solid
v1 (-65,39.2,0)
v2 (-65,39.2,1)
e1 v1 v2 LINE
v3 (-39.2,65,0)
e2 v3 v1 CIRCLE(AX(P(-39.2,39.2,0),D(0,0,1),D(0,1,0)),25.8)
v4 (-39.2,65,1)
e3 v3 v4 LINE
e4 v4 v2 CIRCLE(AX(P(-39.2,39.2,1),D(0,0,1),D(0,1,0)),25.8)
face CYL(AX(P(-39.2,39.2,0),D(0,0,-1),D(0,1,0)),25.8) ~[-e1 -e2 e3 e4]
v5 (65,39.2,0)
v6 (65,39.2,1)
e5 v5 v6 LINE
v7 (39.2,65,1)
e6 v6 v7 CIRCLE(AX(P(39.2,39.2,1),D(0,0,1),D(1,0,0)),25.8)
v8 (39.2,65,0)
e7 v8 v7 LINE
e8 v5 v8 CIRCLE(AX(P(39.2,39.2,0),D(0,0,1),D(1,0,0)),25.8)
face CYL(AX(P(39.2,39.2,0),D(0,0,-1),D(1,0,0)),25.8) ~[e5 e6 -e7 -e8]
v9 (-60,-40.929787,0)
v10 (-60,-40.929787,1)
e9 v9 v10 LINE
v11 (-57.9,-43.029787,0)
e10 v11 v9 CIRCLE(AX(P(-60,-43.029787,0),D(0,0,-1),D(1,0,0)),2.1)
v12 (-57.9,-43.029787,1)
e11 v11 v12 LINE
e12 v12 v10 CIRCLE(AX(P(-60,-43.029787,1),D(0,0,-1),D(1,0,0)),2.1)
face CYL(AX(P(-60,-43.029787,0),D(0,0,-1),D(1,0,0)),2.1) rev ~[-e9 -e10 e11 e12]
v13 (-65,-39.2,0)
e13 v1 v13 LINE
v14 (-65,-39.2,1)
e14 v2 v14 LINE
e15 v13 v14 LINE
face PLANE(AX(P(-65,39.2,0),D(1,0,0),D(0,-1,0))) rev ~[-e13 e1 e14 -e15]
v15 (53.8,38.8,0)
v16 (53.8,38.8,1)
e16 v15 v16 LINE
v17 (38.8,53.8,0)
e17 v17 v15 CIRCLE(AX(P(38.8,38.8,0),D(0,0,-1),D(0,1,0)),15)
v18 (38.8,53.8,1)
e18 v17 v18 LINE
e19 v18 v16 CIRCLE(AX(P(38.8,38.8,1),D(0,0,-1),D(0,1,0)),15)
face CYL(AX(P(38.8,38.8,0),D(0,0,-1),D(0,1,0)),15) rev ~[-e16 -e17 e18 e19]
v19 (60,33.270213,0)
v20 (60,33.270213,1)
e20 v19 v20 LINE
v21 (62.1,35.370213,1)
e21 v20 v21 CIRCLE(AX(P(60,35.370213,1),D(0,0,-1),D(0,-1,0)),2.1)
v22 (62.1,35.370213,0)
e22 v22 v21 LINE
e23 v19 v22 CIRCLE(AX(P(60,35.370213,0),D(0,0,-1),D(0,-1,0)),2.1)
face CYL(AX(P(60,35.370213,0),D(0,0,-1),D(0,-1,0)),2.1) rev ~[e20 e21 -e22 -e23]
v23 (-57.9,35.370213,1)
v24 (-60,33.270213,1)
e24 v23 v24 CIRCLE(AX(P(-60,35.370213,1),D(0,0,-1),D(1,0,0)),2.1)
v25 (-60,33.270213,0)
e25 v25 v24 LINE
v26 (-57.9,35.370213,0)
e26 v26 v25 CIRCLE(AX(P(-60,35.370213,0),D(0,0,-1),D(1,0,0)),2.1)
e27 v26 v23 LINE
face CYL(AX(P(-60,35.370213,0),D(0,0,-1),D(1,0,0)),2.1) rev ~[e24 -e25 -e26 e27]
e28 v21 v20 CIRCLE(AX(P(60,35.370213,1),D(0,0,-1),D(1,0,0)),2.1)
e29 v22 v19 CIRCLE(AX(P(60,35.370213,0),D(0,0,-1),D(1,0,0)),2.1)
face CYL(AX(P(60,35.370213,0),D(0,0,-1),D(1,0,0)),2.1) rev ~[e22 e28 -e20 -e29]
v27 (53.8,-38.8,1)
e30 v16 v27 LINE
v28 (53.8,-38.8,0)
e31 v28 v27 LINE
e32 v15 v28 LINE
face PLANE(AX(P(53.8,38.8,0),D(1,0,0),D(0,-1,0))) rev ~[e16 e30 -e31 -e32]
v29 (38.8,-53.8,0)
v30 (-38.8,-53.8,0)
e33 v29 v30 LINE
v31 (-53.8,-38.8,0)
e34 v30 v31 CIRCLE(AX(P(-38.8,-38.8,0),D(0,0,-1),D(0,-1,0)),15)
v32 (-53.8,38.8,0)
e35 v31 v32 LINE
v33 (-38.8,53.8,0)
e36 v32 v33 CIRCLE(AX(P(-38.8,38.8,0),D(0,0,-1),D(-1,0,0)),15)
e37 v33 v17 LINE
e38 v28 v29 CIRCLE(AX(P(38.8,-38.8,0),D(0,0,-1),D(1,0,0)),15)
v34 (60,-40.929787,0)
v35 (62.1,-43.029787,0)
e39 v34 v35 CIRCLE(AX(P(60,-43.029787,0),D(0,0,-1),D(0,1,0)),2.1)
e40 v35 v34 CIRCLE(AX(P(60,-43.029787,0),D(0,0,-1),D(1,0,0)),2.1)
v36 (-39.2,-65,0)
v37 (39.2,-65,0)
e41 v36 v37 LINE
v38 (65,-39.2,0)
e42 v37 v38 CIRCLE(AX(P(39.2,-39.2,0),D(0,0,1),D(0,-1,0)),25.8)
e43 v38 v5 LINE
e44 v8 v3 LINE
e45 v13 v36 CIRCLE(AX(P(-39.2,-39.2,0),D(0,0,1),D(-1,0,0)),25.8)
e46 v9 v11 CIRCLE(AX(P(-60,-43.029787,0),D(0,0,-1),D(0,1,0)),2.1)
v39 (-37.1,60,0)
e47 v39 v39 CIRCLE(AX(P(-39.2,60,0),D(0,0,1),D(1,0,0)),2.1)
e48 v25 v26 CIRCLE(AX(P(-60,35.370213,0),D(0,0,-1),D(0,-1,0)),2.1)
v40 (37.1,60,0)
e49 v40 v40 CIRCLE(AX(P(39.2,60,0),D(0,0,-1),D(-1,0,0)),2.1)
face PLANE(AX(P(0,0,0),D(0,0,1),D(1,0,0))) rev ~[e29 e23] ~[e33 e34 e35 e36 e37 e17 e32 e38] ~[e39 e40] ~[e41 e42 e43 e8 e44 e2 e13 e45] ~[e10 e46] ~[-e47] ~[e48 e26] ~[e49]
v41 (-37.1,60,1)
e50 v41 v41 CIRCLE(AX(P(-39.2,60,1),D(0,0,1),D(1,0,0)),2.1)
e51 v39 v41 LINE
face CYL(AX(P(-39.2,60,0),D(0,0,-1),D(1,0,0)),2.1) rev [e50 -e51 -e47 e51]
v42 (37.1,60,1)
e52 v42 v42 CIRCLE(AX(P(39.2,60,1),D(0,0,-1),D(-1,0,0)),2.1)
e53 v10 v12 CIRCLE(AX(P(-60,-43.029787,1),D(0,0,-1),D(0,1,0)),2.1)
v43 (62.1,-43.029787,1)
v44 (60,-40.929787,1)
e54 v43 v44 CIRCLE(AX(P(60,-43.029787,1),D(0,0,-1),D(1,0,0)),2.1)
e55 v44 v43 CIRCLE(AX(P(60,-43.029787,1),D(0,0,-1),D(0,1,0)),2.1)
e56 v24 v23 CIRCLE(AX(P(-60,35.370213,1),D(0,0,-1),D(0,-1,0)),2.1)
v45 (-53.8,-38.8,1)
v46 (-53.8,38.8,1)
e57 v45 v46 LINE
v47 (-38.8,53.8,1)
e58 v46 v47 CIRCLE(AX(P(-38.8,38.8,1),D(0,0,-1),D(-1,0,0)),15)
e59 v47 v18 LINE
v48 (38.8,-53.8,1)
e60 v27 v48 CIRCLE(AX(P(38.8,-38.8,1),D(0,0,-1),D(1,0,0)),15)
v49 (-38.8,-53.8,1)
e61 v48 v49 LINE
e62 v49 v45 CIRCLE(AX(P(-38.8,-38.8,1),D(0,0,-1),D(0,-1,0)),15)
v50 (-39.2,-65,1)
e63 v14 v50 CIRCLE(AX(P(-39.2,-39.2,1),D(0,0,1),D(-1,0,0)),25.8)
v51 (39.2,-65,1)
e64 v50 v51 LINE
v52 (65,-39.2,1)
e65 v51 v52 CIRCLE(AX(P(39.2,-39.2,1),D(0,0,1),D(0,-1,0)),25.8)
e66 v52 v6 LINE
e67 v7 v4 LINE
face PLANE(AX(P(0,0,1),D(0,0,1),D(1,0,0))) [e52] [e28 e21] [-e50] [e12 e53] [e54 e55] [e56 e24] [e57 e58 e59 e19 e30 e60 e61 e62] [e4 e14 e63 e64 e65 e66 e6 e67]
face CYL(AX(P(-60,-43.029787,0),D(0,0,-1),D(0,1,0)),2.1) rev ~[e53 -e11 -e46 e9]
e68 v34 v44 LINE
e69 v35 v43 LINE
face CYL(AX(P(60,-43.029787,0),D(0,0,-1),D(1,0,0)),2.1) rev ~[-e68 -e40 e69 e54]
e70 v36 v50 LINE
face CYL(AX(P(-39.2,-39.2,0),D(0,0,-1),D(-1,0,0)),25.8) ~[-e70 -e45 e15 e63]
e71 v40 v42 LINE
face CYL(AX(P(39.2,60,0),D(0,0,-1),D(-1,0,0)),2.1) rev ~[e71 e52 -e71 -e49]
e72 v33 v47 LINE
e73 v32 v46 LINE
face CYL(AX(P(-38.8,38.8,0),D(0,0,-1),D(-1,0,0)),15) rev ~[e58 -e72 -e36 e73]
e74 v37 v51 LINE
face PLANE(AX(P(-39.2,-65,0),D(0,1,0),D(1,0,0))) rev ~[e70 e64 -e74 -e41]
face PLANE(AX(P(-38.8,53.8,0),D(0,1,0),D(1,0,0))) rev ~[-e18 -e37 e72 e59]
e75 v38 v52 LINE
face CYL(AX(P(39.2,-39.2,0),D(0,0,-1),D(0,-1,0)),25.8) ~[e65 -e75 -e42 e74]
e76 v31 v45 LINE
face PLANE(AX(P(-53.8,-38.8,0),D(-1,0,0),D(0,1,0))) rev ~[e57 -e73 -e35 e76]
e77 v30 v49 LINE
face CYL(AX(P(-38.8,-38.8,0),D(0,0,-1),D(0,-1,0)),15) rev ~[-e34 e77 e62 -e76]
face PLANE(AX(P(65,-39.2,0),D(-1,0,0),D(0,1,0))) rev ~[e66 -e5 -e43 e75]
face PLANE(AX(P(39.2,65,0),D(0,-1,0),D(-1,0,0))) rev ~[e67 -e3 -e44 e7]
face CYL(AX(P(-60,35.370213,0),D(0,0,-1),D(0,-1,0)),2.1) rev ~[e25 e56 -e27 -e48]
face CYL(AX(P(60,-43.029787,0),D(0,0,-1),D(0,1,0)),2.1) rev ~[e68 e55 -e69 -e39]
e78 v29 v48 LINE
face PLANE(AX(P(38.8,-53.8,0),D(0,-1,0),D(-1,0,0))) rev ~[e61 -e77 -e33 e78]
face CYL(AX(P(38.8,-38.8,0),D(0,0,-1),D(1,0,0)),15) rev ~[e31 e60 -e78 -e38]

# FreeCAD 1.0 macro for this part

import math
import FreeCAD as App
import Part
import Sketcher
Q = App.Units.Quantity

doc = App.newDocument("Part")
body = doc.addObject("PartDesign::Body", "Body")

# Sketch on XY plane
sketch1 = body.newObject("Sketcher::SketchObject", "Sketch")
sketch1.AttachmentSupport = (doc.getObject("XY_Plane"), [""])
sketch1.MapMode = "FlatFace"
sketch1.addGeometry([
    Part.ArcOfCircle(Part.Circle(App.Vector(39.2, 39.2, 0), App.Vector(0, 0, 1), 25.8), math.radians(0), math.radians(90)),  # 0
    Part.LineSegment(App.Vector(39.2, 65, 0), App.Vector(-39.2, 65, 0)),  # 1
    Part.ArcOfCircle(Part.Circle(App.Vector(-39.2, 39.2, 0), App.Vector(0, 0, 1), 25.8), math.radians(90), math.radians(180)),  # 2
    Part.LineSegment(App.Vector(-65, 39.2, 0), App.Vector(-65, -39.2, 0)),  # 3
    Part.ArcOfCircle(Part.Circle(App.Vector(-39.2, -39.2, 0), App.Vector(0, 0, 1), 25.8), math.radians(180), math.radians(270)),  # 4
    Part.LineSegment(App.Vector(-39.2, -65, 0), App.Vector(39.2, -65, 0)),  # 5
    Part.ArcOfCircle(Part.Circle(App.Vector(39.2, -39.2, 0), App.Vector(0, 0, 1), 25.8), math.radians(-90), math.radians(0)),  # 6
    Part.LineSegment(App.Vector(65, -39.2, 0), App.Vector(65, 39.2, 0)),  # 7
    Part.ArcOfCircle(Part.Circle(App.Vector(-60, -43, 0), App.Vector(0, 0, 1), 2.1), math.radians(0), math.radians(90)),  # 8
    Part.ArcOfCircle(Part.Circle(App.Vector(-60, -43, 0), App.Vector(0, 0, 1), 2.1), math.radians(90), math.radians(360)),  # 9
    Part.ArcOfCircle(Part.Circle(App.Vector(60, -43, 0), App.Vector(0, 0, 1), 2.1), math.radians(0), math.radians(90)),  # 10
    Part.ArcOfCircle(Part.Circle(App.Vector(60, -43, 0), App.Vector(0, 0, 1), 2.1), math.radians(90), math.radians(360)),  # 11
    Part.LineSegment(App.Vector(-53.8, -38.8, 0), App.Vector(-53.8, 38.8, 0)),  # 12
    Part.ArcOfCircle(Part.Circle(App.Vector(-38.8, 38.8, 0), App.Vector(0, 0, 1), 15), math.radians(90), math.radians(180)),  # 13
    Part.LineSegment(App.Vector(-38.8, 53.8, 0), App.Vector(38.8, 53.8, 0)),  # 14
    Part.ArcOfCircle(Part.Circle(App.Vector(38.8, 38.8, 0), App.Vector(0, 0, 1), 15), math.radians(0), math.radians(90)),  # 15
    Part.LineSegment(App.Vector(53.8, 38.8, 0), App.Vector(53.8, -38.8, 0)),  # 16
    Part.ArcOfCircle(Part.Circle(App.Vector(38.8, -38.8, 0), App.Vector(0, 0, 1), 15), math.radians(-90), math.radians(0)),  # 17
    Part.LineSegment(App.Vector(38.8, -53.8, 0), App.Vector(-38.8, -53.8, 0)),  # 18
    Part.ArcOfCircle(Part.Circle(App.Vector(-38.8, -38.8, 0), App.Vector(0, 0, 1), 15), math.radians(180), math.radians(270)),  # 19
    Part.ArcOfCircle(Part.Circle(App.Vector(-60, 35.4, 0), App.Vector(0, 0, 1), 2.1), math.radians(0), math.radians(270)),  # 20
    Part.ArcOfCircle(Part.Circle(App.Vector(-60, 35.4, 0), App.Vector(0, 0, 1), 2.1), math.radians(-90), math.radians(0)),  # 21
    Part.Circle(App.Vector(-39.2, 60, 0), App.Vector(0, 0, 1), 2.1),  # 22
    Part.ArcOfCircle(Part.Circle(App.Vector(60, 35.4, 0), App.Vector(0, 0, 1), 2.1), math.radians(0), math.radians(270)),  # 23
    Part.ArcOfCircle(Part.Circle(App.Vector(60, 35.4, 0), App.Vector(0, 0, 1), 2.1), math.radians(-90), math.radians(0)),  # 24
    Part.Circle(App.Vector(39.2, 60, 0), App.Vector(0, 0, 1), 2.1),  # 25
], False)
sketch1.addConstraint([
    Sketcher.Constraint("Tangent", 0, 2, 1, 1),
    Sketcher.Constraint("Tangent", 1, 2, 2, 1),
    Sketcher.Constraint("Tangent", 2, 2, 3, 1),
    Sketcher.Constraint("Tangent", 3, 2, 4, 1),
    Sketcher.Constraint("Tangent", 4, 2, 5, 1),
    Sketcher.Constraint("Tangent", 5, 2, 6, 1),
    Sketcher.Constraint("Tangent", 6, 2, 7, 1),
    Sketcher.Constraint("Tangent", 7, 2, 0, 1),
    Sketcher.Constraint("Tangent", 8, 1, 9, 2),
    Sketcher.Constraint("Coincident", 9, 1, 8, 2),
    Sketcher.Constraint("Tangent", 10, 1, 11, 2),
    Sketcher.Constraint("Coincident", 11, 1, 10, 2),
    Sketcher.Constraint("Tangent", 12, 2, 13, 2),
    Sketcher.Constraint("Tangent", 13, 1, 14, 1),
    Sketcher.Constraint("Tangent", 14, 2, 15, 2),
    Sketcher.Constraint("Tangent", 15, 1, 16, 1),
    Sketcher.Constraint("Tangent", 16, 2, 17, 2),
    Sketcher.Constraint("Tangent", 17, 1, 18, 1),
    Sketcher.Constraint("Tangent", 18, 2, 19, 2),
    Sketcher.Constraint("Tangent", 19, 1, 12, 1),
    Sketcher.Constraint("Tangent", 20, 1, 21, 2),
    Sketcher.Constraint("Coincident", 21, 1, 20, 2),
    Sketcher.Constraint("Tangent", 23, 1, 24, 2),
    Sketcher.Constraint("Coincident", 24, 1, 23, 2),
    Sketcher.Constraint("Horizontal", 1),
    Sketcher.Constraint("Vertical", 3),
    Sketcher.Constraint("Horizontal", 5),
    Sketcher.Constraint("Vertical", 7),
    Sketcher.Constraint("Vertical", 12),
    Sketcher.Constraint("Horizontal", 14),
    Sketcher.Constraint("Vertical", 16),
    Sketcher.Constraint("Horizontal", 18),
    Sketcher.Constraint("Equal", 0, 2),
    Sketcher.Constraint("Equal", 2, 4),
    Sketcher.Constraint("Equal", 4, 6),
    Sketcher.Constraint("Equal", 9, 10),
    Sketcher.Constraint("Equal", 13, 15),
    Sketcher.Constraint("Equal", 15, 17),
    Sketcher.Constraint("Equal", 17, 19),
    Sketcher.Constraint("Equal", 11, 20),
    Sketcher.Constraint("Equal", 21, 22),
    Sketcher.Constraint("Equal", 22, 23),
    Sketcher.Constraint("Equal", 24, 25),
    Sketcher.Constraint("Symmetric", 0, 3, 4, 3, -1, 1),
    Sketcher.Constraint("Symmetric", 13, 3, 17, 3, -1, 1),
    Sketcher.Constraint("Symmetric", 8, 3, 10, 3, -2),
    Sketcher.Constraint("Symmetric", 20, 3, 23, 3, -2),
    Sketcher.Constraint("Symmetric", 22, 3, 25, 3, -2),
    Sketcher.Constraint("Horizontal", 11, 3, 8, 1),
    Sketcher.Constraint("Horizontal", 8, 1, 10, 1),
    Sketcher.Constraint("Horizontal", 24, 3, 20, 1),
    Sketcher.Constraint("Horizontal", 20, 1, 23, 1),
    Sketcher.Constraint("Vertical", 9, 3, 20, 3),
    Sketcher.Constraint("Vertical", 4, 3, 22, 3),
    Sketcher.Constraint("Vertical", 21, 3, 9, 1),
    Sketcher.Constraint("Vertical", 24, 3, 11, 1),
    Sketcher.Constraint("Vertical", 9, 1, 21, 1),
    Sketcher.Constraint("Vertical", 11, 1, 24, 1),
    Sketcher.Constraint("Equal", 5, 3),
    Sketcher.Constraint("Equal", 18, 12),
    Sketcher.Constraint("Radius", 13, Q("15 mm")),
    Sketcher.Constraint("Diameter", 22, Q("4.2 mm")),
    Sketcher.Constraint("Radius", 0, Q("25.8 mm")),
    Sketcher.Constraint("DistanceX", 1, 2, 1, 1, Q("78.4 mm")),
    Sketcher.Constraint("DistanceX", 14, 1, 14, 2, Q("77.6 mm")),
    Sketcher.Constraint("DistanceX", 8, 3, -1, 1, Q("60 mm")),
    Sketcher.Constraint("DistanceY", -1, 1, 22, 3, Q("60 mm")),
    Sketcher.Constraint("DistanceY", 8, 3, 20, 3, Q("78.4 mm")),
    Sketcher.Constraint("DistanceY", 8, 3, -1, 1, Q("43.029787 mm")),
])
pad1 = body.newObject("PartDesign::Pad", "Pad")
pad1.Profile = sketch1
pad1.Length = 1

doc.recompute()
